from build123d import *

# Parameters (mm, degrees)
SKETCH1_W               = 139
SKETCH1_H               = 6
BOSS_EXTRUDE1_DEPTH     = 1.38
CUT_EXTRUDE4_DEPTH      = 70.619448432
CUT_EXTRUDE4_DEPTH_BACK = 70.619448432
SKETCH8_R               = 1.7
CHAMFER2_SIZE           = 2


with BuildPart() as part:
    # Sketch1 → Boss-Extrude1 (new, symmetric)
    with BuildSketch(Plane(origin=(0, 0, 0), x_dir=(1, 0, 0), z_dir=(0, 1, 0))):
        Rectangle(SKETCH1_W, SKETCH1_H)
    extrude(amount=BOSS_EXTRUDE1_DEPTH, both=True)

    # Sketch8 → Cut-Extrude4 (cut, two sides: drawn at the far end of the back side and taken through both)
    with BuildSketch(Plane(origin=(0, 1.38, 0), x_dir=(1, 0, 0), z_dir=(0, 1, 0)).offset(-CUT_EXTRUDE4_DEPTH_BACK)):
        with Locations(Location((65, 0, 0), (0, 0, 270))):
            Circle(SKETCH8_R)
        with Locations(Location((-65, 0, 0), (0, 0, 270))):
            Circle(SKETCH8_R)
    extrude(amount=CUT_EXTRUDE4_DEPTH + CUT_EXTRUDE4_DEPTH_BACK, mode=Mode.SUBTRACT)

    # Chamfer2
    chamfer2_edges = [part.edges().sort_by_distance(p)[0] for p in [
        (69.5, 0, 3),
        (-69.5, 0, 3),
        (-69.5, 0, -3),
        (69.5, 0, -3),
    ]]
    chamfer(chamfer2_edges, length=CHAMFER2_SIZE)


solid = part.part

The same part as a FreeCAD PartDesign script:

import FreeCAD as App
import Part
import Sketcher


def edges_at(feature, points):
    """Names of the edges that pass closest to the given points."""
    edges = feature.Shape.Edges
    near = lambda p: min(range(len(edges)), key=lambda i: edges[i].distToShape(Part.Vertex(*p))[0])
    return sorted({f"Edge{near(p) + 1}" for p in points})


def add_polygon(sketch, points):
    """Adds a closed chain of lines whose ends are joined by coincident constraints."""
    first, n = sketch.GeometryCount, len(points)
    for a, b in zip(points, points[1:] + points[:1]):
        sketch.addGeometry(Part.LineSegment(App.Vector(*a, 0), App.Vector(*b, 0)), False)
    for i in range(n):
        sketch.addConstraint(Sketcher.Constraint("Coincident", first + i, 2, first + (i + 1) % n, 1))

doc = App.newDocument("Part")
params = doc.addObject("Spreadsheet::Sheet", "Params")
for row, (alias, value) in enumerate([
    ("sketch1_width", "139 mm"),
    ("sketch1_height", "6 mm"),
    ("pad1_length", "2.76 mm"),
    ("sketch2_diameter", "3.4 mm"),
    ("chamfer_size", "2 mm"),
], start=1):
    params.set(f"A{row}", alias)
    params.set(f"B{row}", "=" + value)
    params.setAlias(f"B{row}", alias)

body = doc.addObject("PartDesign::Body", "Body")

# Sketch on XZ plane
sketch1 = body.newObject("Sketcher::SketchObject", "Sketch")
sketch1.AttachmentSupport = (doc.getObject("XZ_Plane"), [""])
sketch1.MapMode = "FlatFace"
add_polygon(sketch1, [(-70, -3), (-70, 3), (70, 3), (70, -3)])  # lines 0-3
sketch1.addConstraint([
    Sketcher.Constraint("Vertical", 0),
    Sketcher.Constraint("Horizontal", 1),
    Sketcher.Constraint("Vertical", 2),
    Sketcher.Constraint("Horizontal", 3),
    Sketcher.Constraint("Symmetric", 0, 2, 2, 2, -1, 1),
    Sketcher.Constraint("DistanceX", 1, 1, 1, 2, 139.0),
    Sketcher.Constraint("DistanceY", 0, 1, 0, 2, 6.0),
])
sketch1.setExpression("Constraints[9]", "Params.sketch1_width")
sketch1.setExpression("Constraints[10]", "Params.sketch1_height")
pad1 = body.newObject("PartDesign::Pad", "Pad")
pad1.Profile = sketch1
pad1.setExpression("Length", "Params.pad1_length")
pad1.Midplane = True

# Sketch on XZ plane
sketch2 = body.newObject("Sketcher::SketchObject", "Sketch001")
sketch2.AttachmentSupport = (doc.getObject("XZ_Plane"), [""])
sketch2.MapMode = "FlatFace"
sketch2.AttachmentOffset = App.Placement(App.Vector(0, 0, -1.38), App.Rotation())
sketch2.addGeometry([
    Part.Circle(App.Vector(65, 0, 0), App.Vector(0, 0, 1), 1.7),
    Part.Circle(App.Vector(-65, 0, 0), App.Vector(0, 0, 1), 1.7),
], False)
sketch2.addConstraint([
    Sketcher.Constraint("Equal", 0, 1),
    Sketcher.Constraint("Symmetric", 0, 3, 1, 3, -1, 1),
    Sketcher.Constraint("PointOnObject", 0, 3, -1),
    Sketcher.Constraint("Diameter", 0, 3.4),
    Sketcher.Constraint("DistanceX", -1, 1, 0, 3, 65.0),
])
sketch2.setExpression("Constraints[3]", "Params.sketch2_diameter")
pocket1 = body.newObject("PartDesign::Pocket", "Pocket")
pocket1.Profile = sketch2
pocket1.Type = "ThroughAll"
pocket1.Midplane = True
doc.recompute()

chamfer = body.newObject("PartDesign::Chamfer", "Chamfer")
chamfer.Base = (pocket1, edges_at(pocket1, [
    (69.5, 0, 3),
    (-69.5, 0, 3),
    (-69.5, 0, -3),
    (69.5, 0, -3),
]))
chamfer.setExpression("Size", "Params.chamfer_size")

doc.recompute()
